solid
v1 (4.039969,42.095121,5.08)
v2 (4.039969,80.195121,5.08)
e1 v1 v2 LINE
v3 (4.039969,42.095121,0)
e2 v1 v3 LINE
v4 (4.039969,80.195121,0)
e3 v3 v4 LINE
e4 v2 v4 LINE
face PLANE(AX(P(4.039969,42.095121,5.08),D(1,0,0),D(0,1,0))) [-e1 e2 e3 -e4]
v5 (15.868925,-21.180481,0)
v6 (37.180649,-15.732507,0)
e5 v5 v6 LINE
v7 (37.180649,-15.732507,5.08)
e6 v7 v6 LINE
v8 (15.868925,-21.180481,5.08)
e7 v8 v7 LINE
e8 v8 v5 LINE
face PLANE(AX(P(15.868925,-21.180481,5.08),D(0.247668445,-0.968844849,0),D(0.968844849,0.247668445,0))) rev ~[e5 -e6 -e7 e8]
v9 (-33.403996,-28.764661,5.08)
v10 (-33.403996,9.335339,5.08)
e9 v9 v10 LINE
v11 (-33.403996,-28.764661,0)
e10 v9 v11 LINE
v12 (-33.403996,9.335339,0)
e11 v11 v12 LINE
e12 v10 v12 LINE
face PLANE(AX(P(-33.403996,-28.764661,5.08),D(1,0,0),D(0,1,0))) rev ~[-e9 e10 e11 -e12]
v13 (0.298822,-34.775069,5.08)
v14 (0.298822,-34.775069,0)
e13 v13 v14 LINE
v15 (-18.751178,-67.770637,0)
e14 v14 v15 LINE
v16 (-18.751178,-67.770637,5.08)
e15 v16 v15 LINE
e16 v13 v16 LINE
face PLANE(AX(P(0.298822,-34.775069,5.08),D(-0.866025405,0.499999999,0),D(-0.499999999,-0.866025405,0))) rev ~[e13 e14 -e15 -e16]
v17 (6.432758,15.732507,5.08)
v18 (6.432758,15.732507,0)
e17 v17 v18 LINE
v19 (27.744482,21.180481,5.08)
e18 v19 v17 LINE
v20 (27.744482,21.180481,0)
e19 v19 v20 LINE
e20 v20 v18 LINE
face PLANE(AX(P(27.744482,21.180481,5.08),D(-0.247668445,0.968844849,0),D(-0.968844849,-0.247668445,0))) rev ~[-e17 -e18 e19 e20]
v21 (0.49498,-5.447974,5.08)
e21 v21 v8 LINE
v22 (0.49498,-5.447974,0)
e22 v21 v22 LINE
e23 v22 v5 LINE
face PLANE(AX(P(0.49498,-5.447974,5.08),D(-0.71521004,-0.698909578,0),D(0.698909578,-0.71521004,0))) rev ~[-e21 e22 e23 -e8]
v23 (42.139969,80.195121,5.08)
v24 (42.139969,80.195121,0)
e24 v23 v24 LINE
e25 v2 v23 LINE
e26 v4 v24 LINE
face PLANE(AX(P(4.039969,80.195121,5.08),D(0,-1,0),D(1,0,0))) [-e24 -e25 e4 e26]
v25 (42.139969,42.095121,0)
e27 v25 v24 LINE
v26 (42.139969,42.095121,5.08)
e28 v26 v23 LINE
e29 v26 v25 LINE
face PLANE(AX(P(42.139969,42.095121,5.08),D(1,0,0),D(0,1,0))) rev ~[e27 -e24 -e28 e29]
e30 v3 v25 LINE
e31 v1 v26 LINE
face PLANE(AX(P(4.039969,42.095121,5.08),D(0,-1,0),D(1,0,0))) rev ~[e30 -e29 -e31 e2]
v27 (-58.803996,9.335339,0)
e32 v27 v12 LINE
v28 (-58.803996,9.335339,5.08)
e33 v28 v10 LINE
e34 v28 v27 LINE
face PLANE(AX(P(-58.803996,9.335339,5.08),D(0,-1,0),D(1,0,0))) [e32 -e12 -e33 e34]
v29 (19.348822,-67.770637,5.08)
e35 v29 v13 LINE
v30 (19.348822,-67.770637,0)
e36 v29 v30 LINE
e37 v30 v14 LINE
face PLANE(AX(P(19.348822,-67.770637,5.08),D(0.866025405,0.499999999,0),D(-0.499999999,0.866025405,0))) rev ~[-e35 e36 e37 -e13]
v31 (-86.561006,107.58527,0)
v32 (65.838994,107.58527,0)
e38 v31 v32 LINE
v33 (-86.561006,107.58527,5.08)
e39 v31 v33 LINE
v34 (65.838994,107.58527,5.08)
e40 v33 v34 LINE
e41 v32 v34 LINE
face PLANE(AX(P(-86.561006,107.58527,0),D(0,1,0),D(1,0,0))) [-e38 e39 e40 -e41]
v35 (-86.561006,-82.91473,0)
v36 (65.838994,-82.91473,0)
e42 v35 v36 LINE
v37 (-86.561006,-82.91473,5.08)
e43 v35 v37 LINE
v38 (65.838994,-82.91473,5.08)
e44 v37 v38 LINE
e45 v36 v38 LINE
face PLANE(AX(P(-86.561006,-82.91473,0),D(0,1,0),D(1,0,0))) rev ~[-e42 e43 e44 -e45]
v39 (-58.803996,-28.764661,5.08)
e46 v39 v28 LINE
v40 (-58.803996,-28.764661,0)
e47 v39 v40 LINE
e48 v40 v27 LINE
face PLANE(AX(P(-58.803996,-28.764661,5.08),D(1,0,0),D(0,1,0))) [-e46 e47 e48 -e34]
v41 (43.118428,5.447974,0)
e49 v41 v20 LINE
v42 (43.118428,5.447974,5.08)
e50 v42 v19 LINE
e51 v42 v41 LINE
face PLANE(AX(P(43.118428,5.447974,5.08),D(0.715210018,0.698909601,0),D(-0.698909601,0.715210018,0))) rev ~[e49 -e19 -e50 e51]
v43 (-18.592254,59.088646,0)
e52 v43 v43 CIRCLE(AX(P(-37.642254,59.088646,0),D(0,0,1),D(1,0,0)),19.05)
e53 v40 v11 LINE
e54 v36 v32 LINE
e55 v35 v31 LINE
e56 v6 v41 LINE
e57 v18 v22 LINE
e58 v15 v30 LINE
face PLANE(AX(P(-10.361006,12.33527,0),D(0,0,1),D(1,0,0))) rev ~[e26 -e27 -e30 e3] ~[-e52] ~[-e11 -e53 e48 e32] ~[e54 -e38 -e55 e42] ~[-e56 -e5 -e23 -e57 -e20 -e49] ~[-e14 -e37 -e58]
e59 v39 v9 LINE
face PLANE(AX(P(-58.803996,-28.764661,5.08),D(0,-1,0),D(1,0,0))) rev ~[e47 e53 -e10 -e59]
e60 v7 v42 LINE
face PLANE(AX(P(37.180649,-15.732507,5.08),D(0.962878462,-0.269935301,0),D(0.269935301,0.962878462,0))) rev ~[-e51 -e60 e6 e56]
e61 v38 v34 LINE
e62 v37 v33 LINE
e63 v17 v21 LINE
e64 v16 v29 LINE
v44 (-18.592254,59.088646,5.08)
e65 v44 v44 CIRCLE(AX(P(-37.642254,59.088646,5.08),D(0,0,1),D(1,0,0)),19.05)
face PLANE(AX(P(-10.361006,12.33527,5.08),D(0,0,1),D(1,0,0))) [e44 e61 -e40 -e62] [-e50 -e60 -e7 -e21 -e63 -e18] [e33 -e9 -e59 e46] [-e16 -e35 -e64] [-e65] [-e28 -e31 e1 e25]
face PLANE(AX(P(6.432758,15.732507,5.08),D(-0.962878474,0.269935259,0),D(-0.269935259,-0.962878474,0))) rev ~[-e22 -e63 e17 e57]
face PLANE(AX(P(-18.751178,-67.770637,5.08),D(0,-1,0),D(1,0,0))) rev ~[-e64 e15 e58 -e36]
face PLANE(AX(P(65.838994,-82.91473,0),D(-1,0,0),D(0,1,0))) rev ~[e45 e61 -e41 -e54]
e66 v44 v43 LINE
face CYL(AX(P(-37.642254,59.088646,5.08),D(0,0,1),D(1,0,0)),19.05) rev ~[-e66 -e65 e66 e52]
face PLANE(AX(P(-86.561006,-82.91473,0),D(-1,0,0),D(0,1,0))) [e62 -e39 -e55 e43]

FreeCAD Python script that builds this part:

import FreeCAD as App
import Part
import Sketcher

V = App.Vector
Q = App.Units.Quantity

doc = App.newDocument("Part")
params = doc.addObject("Spreadsheet::Sheet", "Params")
for row, (alias, value) in enumerate([
    ("sketch1_width", "6 in"),
    ("sketch1_height", "7.5 in"),
    ("pad1_length", "0.2 in"),
    ("sketch2_diameter", "1.5 in"),
    ("sketch2_width", "1 in"),
    ("sketch2_width2", "1.5 in"),
    ("pocket1_length", "1 in"),
], start=1):
    params.set(f"A{row}", alias)
    params.set(f"B{row}", "=" + value)
    params.setAlias(f"B{row}", alias)

body = doc.addObject("PartDesign::Body", "Body")

# Sketch on XY plane
sketch1 = body.newObject("Sketcher::SketchObject", "Sketch")
sketch1.AttachmentSupport = (doc.getObject("XY_Plane"), [""])
sketch1.MapMode = "FlatFace"
sketch1.addGeometry([
    Part.LineSegment(V(-86.561006, 107.58527, 0), V(-86.561006, -82.91473, 0)),
    Part.LineSegment(V(-86.561006, -82.91473, 0), V(65.838994, -82.91473, 0)),
    Part.LineSegment(V(65.838994, -82.91473, 0), V(65.838994, 107.58527, 0)),
    Part.LineSegment(V(65.838994, 107.58527, 0), V(-86.561006, 107.58527, 0)),
], False)
sketch1.addConstraint([
    Sketcher.Constraint("Coincident", 0, 2, 1, 1),
    Sketcher.Constraint("Coincident", 1, 2, 2, 1),
    Sketcher.Constraint("Coincident", 2, 2, 3, 1),
    Sketcher.Constraint("Coincident", 3, 2, 0, 1),
    Sketcher.Constraint("Vertical", 0),
    Sketcher.Constraint("Horizontal", 1),
    Sketcher.Constraint("Vertical", 2),
    Sketcher.Constraint("Horizontal", 3),
    Sketcher.Constraint("DistanceX", 1, 1, 1, 2, Q("6 in")),
    Sketcher.Constraint("DistanceY", 0, 2, 0, 1, Q("7.5 in")),
    Sketcher.Constraint("DistanceY", 0, 2, -1, 1, 82.91473),
    Sketcher.Constraint("DistanceX", 0, 2, -1, 1, 86.561006),
])
sketch1.setExpression("Constraints[8]", "Params.sketch1_width")
sketch1.setExpression("Constraints[9]", "Params.sketch1_height")
pad1 = body.newObject("PartDesign::Pad", "Pad")
pad1.Profile = sketch1
pad1.setExpression("Length", "Params.pad1_length")

# Sketch on XY plane
sketch2 = body.newObject("Sketcher::SketchObject", "Sketch001")
sketch2.AttachmentSupport = (doc.getObject("XY_Plane"), [""])
sketch2.MapMode = "FlatFace"
sketch2.AttachmentOffset = App.Placement(V(0, 0, 0.2 * 25.4), App.Rotation())
sketch2.addGeometry([
    Part.LineSegment(V(4.039969, 80.195121, 0), V(4.039969, 42.095121, 0)),  # 0
    Part.LineSegment(V(4.039969, 42.095121, 0), V(42.139969, 42.095121, 0)),  # 1
    Part.LineSegment(V(42.139969, 42.095121, 0), V(42.139969, 80.195121, 0)),  # 2
    Part.LineSegment(V(42.139969, 80.195121, 0), V(4.039969, 80.195121, 0)),  # 3
    Part.LineSegment(V(19.348822, -67.770637, 0), V(0.298822, -34.775069, 0)),  # 4
    Part.LineSegment(V(0.298822, -34.775069, 0), V(-18.751178, -67.770637, 0)),  # 5
    Part.LineSegment(V(-18.751178, -67.770637, 0), V(19.348822, -67.770637, 0)),  # 6
    Part.Circle(V(-37.642254, 59.088646, 0), V(0, 0, 1), 19.05),  # 7
    Part.LineSegment(V(15.868925, -21.180481, 0), V(37.180649, -15.732507, 0)),  # 8
    Part.LineSegment(V(37.180649, -15.732507, 0), V(43.118428, 5.447974, 0)),  # 9
    Part.LineSegment(V(43.118428, 5.447974, 0), V(27.744482, 21.180481, 0)),  # 10
    Part.LineSegment(V(27.744482, 21.180481, 0), V(6.432758, 15.732507, 0)),  # 11
    Part.LineSegment(V(6.432758, 15.732507, 0), V(0.49498, -5.447974, 0)),  # 12
    Part.LineSegment(V(0.49498, -5.447974, 0), V(15.868925, -21.180481, 0)),  # 13
    Part.LineSegment(V(-58.803996, 9.335339, 0), V(-58.803996, -28.764661, 0)),  # 14
    Part.LineSegment(V(-58.803996, -28.764661, 0), V(-33.403996, -28.764661, 0)),  # 15
    Part.LineSegment(V(-33.403996, -28.764661, 0), V(-33.403996, 9.335339, 0)),  # 16
    Part.LineSegment(V(-33.403996, 9.335339, 0), V(-58.803996, 9.335339, 0)),  # 17
], False)
sketch2.addConstraint([
    Sketcher.Constraint("Coincident", 0, 2, 1, 1),
    Sketcher.Constraint("Coincident", 1, 2, 2, 1),
    Sketcher.Constraint("Coincident", 2, 2, 3, 1),
    Sketcher.Constraint("Coincident", 3, 2, 0, 1),
    Sketcher.Constraint("Coincident", 4, 2, 5, 1),
    Sketcher.Constraint("Coincident", 5, 2, 6, 1),
    Sketcher.Constraint("Coincident", 6, 2, 4, 1),
    Sketcher.Constraint("Coincident", 8, 2, 9, 1),
    Sketcher.Constraint("Coincident", 9, 2, 10, 1),
    Sketcher.Constraint("Coincident", 10, 2, 11, 1),
    Sketcher.Constraint("Coincident", 11, 2, 12, 1),
    Sketcher.Constraint("Coincident", 12, 2, 13, 1),
    Sketcher.Constraint("Coincident", 13, 2, 8, 1),
    Sketcher.Constraint("Coincident", 14, 2, 15, 1),
    Sketcher.Constraint("Coincident", 15, 2, 16, 1),
    Sketcher.Constraint("Coincident", 16, 2, 17, 1),
    Sketcher.Constraint("Coincident", 17, 2, 14, 1),
    Sketcher.Constraint("Vertical", 0),
    Sketcher.Constraint("Horizontal", 1),
    Sketcher.Constraint("Vertical", 2),
    Sketcher.Constraint("Horizontal", 3),
    Sketcher.Constraint("Horizontal", 6),
    Sketcher.Constraint("Vertical", 14),
    Sketcher.Constraint("Horizontal", 15),
    Sketcher.Constraint("Vertical", 16),
    Sketcher.Constraint("Horizontal", 17),
    Sketcher.Constraint("Parallel", 8, 11),
    Sketcher.Constraint("Parallel", 9, 12),
    Sketcher.Constraint("Parallel", 10, 13),
    Sketcher.Constraint("Equal", 3, 6),
    Sketcher.Constraint("Equal", 6, 0),
    Sketcher.Constraint("Equal", 2, 14),
    Sketcher.Constraint("Equal", 4, 5),
    Sketcher.Constraint("Equal", 8, 9),
    Sketcher.Constraint("Equal", 9, 10),
    Sketcher.Constraint("Equal", 10, 11),
    Sketcher.Constraint("Diameter", 7, Q("1.5 in")),
    Sketcher.Constraint("DistanceX", 15, 1, 15, 2, Q("1 in")),
    Sketcher.Constraint("DistanceX", 1, 1, 1, 2, Q("1.5 in")),
    Sketcher.Constraint("Angle", 4, Q("120 deg")),
    Sketcher.Constraint("DistanceX", 12, 2, 10, 2, 27.249502),
    Sketcher.Constraint("DistanceX", -1, 1, 0, 2, 4.039969),
    Sketcher.Constraint("DistanceY", -1, 1, 0, 2, 42.095121),
    Sketcher.Constraint("DistanceY", 4, 2, -1, 1, 34.775069),
    Sketcher.Constraint("DistanceX", -1, 1, 6, 2, 19.348822),
    Sketcher.Constraint("DistanceX", -1, 1, 8, 2, 37.180649),
    Sketcher.Constraint("DistanceX", -1, 1, 9, 2, 43.118428),
    Sketcher.Constraint("DistanceY", -1, 1, 10, 2, 21.180481),
    Sketcher.Constraint("DistanceX", -1, 1, 12, 2, 0.49498),
    Sketcher.Constraint("DistanceY", 13, 2, -1, 1, 21.180481),
    Sketcher.Constraint("DistanceY", 14, 2, -1, 1, 28.764661),
    Sketcher.Constraint("DistanceX", 14, 2, 5, 2, 40.052818),
    Sketcher.Constraint("DistanceX", 17, 2, 7, 3, 21.161742),
    Sketcher.Constraint("DistanceY", -1, 1, 7, 3, 59.088646),
])
sketch2.setExpression("Constraints[36]", "Params.sketch2_diameter")
sketch2.setExpression("Constraints[37]", "Params.sketch2_width")
sketch2.setExpression("Constraints[38]", "Params.sketch2_width2")
pocket1 = body.newObject("PartDesign::Pocket", "Pocket")
pocket1.Profile = sketch2
pocket1.setExpression("Length", "Params.pocket1_length")

doc.recompute()
